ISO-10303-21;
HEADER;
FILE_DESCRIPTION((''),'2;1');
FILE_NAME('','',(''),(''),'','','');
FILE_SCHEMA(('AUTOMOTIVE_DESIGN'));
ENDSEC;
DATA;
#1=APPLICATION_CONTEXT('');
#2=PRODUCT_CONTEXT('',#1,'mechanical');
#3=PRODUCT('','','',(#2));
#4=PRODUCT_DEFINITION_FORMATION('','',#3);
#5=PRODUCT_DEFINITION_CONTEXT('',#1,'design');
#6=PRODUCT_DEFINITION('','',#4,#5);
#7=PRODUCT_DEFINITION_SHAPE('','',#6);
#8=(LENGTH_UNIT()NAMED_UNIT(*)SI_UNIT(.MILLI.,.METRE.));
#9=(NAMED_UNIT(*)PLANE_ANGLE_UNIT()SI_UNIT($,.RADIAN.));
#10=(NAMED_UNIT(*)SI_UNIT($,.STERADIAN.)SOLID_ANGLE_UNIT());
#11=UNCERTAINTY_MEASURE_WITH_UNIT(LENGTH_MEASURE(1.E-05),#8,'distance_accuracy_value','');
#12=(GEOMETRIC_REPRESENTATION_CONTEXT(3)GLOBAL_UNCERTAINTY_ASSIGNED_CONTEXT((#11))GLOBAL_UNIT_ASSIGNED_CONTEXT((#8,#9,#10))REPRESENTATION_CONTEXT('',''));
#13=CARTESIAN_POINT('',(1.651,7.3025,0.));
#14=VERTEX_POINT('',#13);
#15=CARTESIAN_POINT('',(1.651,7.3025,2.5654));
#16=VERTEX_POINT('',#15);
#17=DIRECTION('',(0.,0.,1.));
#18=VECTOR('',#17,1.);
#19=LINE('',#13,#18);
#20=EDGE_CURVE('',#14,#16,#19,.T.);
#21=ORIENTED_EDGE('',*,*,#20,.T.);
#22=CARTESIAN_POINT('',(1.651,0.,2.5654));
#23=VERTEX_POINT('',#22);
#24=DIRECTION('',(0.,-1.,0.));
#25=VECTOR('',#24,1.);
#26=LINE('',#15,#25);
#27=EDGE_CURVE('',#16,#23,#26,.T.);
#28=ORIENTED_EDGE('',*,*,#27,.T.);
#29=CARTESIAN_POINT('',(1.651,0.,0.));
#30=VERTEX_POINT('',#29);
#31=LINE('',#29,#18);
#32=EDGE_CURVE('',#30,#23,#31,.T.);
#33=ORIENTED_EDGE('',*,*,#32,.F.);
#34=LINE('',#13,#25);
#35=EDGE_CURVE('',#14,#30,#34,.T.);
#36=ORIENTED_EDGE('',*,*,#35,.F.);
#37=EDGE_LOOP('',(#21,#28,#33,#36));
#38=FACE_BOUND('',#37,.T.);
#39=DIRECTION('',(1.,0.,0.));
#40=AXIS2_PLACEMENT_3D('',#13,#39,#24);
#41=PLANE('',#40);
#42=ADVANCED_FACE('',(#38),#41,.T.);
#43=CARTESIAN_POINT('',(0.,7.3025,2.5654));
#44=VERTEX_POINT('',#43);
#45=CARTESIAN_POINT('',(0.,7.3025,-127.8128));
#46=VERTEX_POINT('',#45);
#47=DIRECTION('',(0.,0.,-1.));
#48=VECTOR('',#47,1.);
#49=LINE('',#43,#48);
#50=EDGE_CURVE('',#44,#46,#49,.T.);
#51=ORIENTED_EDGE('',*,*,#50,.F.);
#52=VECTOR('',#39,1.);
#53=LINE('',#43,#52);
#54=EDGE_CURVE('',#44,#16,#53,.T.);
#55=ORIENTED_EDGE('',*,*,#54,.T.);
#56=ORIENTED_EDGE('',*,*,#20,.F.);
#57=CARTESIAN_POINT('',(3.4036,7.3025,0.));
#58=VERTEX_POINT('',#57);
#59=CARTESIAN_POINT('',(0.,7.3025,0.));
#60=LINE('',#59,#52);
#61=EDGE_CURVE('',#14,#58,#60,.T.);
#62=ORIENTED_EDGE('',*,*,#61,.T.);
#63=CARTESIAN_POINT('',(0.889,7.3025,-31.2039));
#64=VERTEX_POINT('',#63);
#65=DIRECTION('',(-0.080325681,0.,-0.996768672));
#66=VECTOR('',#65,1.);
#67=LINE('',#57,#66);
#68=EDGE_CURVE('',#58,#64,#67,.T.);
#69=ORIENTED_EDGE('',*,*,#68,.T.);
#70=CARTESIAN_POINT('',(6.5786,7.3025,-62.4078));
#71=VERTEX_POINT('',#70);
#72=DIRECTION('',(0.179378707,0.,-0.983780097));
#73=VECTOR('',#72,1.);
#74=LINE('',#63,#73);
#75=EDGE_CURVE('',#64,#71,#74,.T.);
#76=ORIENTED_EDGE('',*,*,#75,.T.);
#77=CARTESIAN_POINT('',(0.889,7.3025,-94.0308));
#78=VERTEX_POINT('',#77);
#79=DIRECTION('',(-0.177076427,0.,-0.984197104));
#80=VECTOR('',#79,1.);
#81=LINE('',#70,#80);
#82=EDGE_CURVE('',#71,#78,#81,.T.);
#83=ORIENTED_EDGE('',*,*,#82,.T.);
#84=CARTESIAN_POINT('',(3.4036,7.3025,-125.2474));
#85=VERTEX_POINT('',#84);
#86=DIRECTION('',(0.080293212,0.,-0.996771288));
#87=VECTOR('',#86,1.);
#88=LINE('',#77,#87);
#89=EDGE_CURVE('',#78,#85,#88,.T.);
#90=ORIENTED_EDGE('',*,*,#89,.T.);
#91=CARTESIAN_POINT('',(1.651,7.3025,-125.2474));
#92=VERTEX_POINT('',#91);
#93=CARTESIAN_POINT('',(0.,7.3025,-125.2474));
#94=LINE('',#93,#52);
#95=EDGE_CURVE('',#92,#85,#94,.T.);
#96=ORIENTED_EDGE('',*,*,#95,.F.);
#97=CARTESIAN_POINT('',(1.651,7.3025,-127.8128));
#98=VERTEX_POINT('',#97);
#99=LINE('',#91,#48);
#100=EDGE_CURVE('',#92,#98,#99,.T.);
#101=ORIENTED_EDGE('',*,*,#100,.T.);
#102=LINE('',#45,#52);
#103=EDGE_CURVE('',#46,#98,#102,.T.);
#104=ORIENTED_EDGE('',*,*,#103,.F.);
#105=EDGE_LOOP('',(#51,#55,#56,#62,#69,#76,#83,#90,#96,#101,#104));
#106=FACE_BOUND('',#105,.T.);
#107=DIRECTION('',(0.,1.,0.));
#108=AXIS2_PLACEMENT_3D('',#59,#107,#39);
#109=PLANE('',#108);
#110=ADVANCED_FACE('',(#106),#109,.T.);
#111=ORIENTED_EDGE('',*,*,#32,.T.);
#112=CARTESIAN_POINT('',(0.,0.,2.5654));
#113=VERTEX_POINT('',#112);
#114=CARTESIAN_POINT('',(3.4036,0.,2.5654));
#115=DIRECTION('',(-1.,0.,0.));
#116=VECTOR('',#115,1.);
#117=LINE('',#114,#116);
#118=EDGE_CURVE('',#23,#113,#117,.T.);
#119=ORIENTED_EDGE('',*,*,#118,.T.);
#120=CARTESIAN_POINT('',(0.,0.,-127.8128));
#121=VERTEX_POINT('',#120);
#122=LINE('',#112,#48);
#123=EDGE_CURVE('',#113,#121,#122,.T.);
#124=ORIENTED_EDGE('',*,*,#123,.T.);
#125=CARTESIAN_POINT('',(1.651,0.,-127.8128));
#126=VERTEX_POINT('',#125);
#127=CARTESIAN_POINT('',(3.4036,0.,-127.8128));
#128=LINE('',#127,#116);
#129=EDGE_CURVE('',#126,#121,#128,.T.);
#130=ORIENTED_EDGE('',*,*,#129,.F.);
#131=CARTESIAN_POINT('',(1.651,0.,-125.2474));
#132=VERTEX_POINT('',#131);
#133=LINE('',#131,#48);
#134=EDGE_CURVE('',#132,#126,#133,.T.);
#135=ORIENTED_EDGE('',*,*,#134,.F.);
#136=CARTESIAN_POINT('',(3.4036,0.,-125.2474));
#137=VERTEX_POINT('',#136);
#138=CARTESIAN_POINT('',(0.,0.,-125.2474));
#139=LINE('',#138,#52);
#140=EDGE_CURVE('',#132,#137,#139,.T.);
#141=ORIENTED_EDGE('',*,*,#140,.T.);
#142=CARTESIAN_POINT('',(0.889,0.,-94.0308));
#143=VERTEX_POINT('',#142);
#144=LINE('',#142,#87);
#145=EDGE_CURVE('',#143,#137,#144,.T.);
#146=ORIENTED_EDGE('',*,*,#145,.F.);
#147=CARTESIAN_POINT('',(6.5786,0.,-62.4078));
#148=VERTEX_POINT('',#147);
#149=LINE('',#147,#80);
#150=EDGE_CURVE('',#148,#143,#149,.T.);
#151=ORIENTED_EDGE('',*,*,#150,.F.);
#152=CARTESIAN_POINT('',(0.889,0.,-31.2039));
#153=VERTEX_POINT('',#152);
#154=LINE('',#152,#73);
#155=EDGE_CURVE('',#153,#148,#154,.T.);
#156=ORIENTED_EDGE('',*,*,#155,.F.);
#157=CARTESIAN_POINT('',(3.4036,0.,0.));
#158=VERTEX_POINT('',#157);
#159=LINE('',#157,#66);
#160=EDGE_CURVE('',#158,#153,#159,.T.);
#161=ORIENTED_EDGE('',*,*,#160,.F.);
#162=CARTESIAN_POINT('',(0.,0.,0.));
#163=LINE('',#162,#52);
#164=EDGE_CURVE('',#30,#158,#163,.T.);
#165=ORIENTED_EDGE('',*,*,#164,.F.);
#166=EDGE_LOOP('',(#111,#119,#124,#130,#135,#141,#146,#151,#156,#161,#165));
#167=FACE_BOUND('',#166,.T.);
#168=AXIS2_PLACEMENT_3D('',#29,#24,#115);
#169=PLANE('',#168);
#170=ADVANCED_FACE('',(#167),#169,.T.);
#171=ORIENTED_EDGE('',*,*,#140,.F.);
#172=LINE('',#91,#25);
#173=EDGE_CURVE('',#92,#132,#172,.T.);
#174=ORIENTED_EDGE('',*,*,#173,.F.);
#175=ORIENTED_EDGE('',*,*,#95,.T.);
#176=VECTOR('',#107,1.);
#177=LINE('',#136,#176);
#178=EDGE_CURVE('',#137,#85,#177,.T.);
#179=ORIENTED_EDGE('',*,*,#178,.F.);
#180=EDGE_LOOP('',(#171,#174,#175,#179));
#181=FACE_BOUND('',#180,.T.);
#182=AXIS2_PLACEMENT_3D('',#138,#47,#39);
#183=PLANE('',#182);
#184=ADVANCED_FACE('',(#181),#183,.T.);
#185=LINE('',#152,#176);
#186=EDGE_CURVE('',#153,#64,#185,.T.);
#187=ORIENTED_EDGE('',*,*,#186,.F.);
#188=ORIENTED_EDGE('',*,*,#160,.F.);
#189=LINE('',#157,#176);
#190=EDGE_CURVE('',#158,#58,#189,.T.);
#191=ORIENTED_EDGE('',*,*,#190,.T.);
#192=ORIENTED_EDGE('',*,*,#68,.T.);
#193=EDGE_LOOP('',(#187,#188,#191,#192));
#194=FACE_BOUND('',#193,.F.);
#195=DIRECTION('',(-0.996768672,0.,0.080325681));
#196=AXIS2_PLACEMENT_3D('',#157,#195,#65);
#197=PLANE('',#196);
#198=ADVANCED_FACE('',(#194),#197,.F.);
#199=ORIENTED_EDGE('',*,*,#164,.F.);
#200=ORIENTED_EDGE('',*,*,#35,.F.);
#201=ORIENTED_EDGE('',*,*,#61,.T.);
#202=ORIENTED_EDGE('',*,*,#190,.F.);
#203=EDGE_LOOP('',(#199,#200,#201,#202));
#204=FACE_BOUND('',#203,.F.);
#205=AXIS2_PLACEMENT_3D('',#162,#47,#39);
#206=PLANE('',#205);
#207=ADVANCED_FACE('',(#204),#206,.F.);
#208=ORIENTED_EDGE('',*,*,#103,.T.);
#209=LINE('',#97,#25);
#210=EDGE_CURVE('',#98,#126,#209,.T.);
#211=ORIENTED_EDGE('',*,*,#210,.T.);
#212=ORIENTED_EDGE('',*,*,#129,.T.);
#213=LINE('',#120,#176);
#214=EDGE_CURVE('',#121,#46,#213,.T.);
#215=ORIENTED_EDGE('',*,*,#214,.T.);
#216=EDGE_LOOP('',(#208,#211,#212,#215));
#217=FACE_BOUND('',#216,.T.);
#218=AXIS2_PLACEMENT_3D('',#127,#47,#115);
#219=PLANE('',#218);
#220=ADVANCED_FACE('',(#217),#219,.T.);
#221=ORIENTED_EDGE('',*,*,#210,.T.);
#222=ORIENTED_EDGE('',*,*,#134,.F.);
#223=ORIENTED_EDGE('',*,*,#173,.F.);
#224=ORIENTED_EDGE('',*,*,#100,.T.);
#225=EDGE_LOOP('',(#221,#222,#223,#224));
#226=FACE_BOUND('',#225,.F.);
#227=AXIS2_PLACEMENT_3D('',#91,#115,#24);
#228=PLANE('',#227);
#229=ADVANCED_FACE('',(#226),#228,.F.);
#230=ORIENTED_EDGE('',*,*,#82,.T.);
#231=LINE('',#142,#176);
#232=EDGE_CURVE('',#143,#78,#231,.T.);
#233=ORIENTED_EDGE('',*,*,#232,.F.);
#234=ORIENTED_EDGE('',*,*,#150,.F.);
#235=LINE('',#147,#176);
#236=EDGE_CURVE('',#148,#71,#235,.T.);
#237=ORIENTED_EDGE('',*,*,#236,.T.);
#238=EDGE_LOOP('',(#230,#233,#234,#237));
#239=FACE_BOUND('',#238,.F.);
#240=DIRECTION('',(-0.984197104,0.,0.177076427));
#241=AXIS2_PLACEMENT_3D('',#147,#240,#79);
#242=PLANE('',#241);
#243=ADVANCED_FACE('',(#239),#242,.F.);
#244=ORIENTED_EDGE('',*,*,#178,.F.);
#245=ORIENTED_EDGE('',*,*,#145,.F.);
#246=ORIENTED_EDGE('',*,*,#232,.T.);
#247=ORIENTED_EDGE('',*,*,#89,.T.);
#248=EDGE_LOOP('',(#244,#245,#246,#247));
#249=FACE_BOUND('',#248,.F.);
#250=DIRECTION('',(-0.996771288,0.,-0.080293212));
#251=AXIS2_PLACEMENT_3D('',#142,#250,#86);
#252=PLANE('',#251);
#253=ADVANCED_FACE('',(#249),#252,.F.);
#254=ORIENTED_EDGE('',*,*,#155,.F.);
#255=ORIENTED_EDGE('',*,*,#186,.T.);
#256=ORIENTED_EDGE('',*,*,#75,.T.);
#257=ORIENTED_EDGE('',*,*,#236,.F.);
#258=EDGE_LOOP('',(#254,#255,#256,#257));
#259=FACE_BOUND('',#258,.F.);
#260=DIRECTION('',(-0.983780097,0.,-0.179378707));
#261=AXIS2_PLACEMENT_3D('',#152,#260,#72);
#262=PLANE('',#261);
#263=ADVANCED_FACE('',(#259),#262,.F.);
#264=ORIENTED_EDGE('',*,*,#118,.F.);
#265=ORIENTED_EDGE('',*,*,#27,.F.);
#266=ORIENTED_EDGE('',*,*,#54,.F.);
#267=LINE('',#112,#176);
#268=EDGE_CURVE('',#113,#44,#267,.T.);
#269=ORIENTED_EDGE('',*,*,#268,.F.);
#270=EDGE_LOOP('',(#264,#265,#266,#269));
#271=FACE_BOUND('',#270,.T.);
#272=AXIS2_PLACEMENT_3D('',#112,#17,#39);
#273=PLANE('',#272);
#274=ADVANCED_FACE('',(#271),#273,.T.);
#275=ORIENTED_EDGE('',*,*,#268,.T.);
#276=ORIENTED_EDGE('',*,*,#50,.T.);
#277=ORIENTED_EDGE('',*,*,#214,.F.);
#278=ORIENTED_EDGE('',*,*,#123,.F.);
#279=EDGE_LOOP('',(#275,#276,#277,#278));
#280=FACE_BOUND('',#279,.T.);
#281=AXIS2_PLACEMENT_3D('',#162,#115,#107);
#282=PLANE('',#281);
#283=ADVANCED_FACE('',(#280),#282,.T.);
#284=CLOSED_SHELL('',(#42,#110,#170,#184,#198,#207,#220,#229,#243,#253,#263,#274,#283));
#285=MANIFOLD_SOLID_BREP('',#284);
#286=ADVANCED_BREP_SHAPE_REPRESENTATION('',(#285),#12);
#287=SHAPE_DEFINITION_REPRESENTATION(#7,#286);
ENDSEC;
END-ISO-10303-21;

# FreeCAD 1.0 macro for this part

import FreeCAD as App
import Part
import Sketcher
Q = App.Units.Quantity


def add_polygon(sketch, points):
    """Adds a closed chain of lines whose ends are joined by coincident constraints."""
    first, n = sketch.GeometryCount, len(points)
    for a, b in zip(points, points[1:] + points[:1]):
        sketch.addGeometry(Part.LineSegment(App.Vector(*a, 0), App.Vector(*b, 0)), False)
    for i in range(n):
        sketch.addConstraint(Sketcher.Constraint("Coincident", first + i, 2, first + (i + 1) % n, 1))

doc = App.newDocument("Part")
params = doc.addObject("Spreadsheet::Sheet", "Params")
for row, (alias, value) in enumerate([
    ("sketch1_width", "0.134 in"),
    ("sketch1_height", "4.931 in"),
    ("pad1_length", "0.2875 in"),
    ("sketch2_width", "0.065 in"),
    ("pad2_length", "0.101 in"),
    ("sketch3_width", "0.065 in"),
    ("pad3_length", "0.101 in"),
], start=1):
    params.set(f"A{row}", alias)
    params.set(f"B{row}", "=" + value)
    params.setAlias(f"B{row}", alias)

body = doc.addObject("PartDesign::Body", "Body")

# Sketch on XZ plane
sketch1 = body.newObject("Sketcher::SketchObject", "Sketch")
sketch1.AttachmentSupport = (doc.getObject("XZ_Plane"), [""])
sketch1.MapMode = "FlatFace"
add_polygon(sketch1, [(0, -125.2474), (0, 0), (3.4036, 0), (0.889, -31.2039), (6.5786, -62.4078), (0.889, -94.0308), (3.4036, -125.2474)])  # lines 0-6
sketch1.addConstraint([
    Sketcher.Constraint("Vertical", 0),
    Sketcher.Constraint("Horizontal", 1),
    Sketcher.Constraint("Horizontal", 6),
    Sketcher.Constraint("Coincident", 0, 2, -1, 1),
    Sketcher.Constraint("Vertical", 2, 2, 4, 2),
    Sketcher.Constraint("Vertical", 1, 2, 5, 2),
    Sketcher.Constraint("DistanceX", 1, 1, 1, 2, Q("0.134 in")),
    Sketcher.Constraint("DistanceY", 0, 1, 0, 2, Q("4.931 in")),
    Sketcher.Constraint("DistanceX", -1, 1, 2, 2, Q("0.035 in")),
    Sketcher.Constraint("DistanceX", -1, 1, 3, 2, Q("0.259 in")),
    Sketcher.Constraint("DistanceY", 3, 2, -1, 1, Q("2.457 in")),
    Sketcher.Constraint("DistanceY", 5, 2, 4, 2, Q("1.229 in")),
    Sketcher.Constraint("DistanceY", 2, 2, -1, 1, Q("1.2285 in")),
])
sketch1.setExpression("Constraints[13]", "Params.sketch1_width")
sketch1.setExpression("Constraints[14]", "Params.sketch1_height")
pad1 = body.newObject("PartDesign::Pad", "Pad")
pad1.Profile = sketch1
pad1.setExpression("Length", "Params.pad1_length")
pad1.Reversed = True

# Sketch on XY plane
sketch2 = body.newObject("Sketcher::SketchObject", "Sketch001")
sketch2.AttachmentSupport = (doc.getObject("XY_Plane"), [""])
sketch2.MapMode = "FlatFace"
sketch2.AttachmentOffset = App.Placement(App.Vector(0, 0, -4.931 * 25.4), App.Rotation())
add_polygon(sketch2, [(1.651, 0), (0, 0), (0, 7.3025), (1.651, 7.3025)])  # lines 0-3
sketch2.addConstraint([
    Sketcher.Constraint("Horizontal", 0),
    Sketcher.Constraint("Vertical", 1),
    Sketcher.Constraint("Horizontal", 2),
    Sketcher.Constraint("Vertical", 3),
    Sketcher.Constraint("Coincident", 0, 2, -1, 1),
    Sketcher.Constraint("DistanceX", 0, 2, 0, 1, Q("0.065 in")),
    Sketcher.Constraint("DistanceY", 1, 1, 1, 2, Q("0.2875 in")),
])
sketch2.setExpression("Constraints[9]", "Params.sketch2_width")
pad2 = body.newObject("PartDesign::Pad", "Pad001")
pad2.Profile = sketch2
pad2.setExpression("Length", "Params.pad2_length")
pad2.Reversed = True

# Sketch on XY plane
sketch3 = body.newObject("Sketcher::SketchObject", "Sketch002")
sketch3.AttachmentSupport = (doc.getObject("XY_Plane"), [""])
sketch3.MapMode = "FlatFace"
add_polygon(sketch3, [(0, 0), (1.651, 0), (1.651, 7.3025), (0, 7.3025)])  # lines 0-3
sketch3.addConstraint([
    Sketcher.Constraint("Horizontal", 0),
    Sketcher.Constraint("Vertical", 1),
    Sketcher.Constraint("Horizontal", 2),
    Sketcher.Constraint("Vertical", 3),
    Sketcher.Constraint("Coincident", 3, 2, -1, 1),
    Sketcher.Constraint("DistanceX", 0, 1, 0, 2, Q("0.065 in")),
    Sketcher.Constraint("DistanceY", 1, 1, 1, 2, Q("0.2875 in")),
])
sketch3.setExpression("Constraints[9]", "Params.sketch3_width")
pad3 = body.newObject("PartDesign::Pad", "Pad002")
pad3.Profile = sketch3
pad3.setExpression("Length", "Params.pad3_length")

doc.recompute()
